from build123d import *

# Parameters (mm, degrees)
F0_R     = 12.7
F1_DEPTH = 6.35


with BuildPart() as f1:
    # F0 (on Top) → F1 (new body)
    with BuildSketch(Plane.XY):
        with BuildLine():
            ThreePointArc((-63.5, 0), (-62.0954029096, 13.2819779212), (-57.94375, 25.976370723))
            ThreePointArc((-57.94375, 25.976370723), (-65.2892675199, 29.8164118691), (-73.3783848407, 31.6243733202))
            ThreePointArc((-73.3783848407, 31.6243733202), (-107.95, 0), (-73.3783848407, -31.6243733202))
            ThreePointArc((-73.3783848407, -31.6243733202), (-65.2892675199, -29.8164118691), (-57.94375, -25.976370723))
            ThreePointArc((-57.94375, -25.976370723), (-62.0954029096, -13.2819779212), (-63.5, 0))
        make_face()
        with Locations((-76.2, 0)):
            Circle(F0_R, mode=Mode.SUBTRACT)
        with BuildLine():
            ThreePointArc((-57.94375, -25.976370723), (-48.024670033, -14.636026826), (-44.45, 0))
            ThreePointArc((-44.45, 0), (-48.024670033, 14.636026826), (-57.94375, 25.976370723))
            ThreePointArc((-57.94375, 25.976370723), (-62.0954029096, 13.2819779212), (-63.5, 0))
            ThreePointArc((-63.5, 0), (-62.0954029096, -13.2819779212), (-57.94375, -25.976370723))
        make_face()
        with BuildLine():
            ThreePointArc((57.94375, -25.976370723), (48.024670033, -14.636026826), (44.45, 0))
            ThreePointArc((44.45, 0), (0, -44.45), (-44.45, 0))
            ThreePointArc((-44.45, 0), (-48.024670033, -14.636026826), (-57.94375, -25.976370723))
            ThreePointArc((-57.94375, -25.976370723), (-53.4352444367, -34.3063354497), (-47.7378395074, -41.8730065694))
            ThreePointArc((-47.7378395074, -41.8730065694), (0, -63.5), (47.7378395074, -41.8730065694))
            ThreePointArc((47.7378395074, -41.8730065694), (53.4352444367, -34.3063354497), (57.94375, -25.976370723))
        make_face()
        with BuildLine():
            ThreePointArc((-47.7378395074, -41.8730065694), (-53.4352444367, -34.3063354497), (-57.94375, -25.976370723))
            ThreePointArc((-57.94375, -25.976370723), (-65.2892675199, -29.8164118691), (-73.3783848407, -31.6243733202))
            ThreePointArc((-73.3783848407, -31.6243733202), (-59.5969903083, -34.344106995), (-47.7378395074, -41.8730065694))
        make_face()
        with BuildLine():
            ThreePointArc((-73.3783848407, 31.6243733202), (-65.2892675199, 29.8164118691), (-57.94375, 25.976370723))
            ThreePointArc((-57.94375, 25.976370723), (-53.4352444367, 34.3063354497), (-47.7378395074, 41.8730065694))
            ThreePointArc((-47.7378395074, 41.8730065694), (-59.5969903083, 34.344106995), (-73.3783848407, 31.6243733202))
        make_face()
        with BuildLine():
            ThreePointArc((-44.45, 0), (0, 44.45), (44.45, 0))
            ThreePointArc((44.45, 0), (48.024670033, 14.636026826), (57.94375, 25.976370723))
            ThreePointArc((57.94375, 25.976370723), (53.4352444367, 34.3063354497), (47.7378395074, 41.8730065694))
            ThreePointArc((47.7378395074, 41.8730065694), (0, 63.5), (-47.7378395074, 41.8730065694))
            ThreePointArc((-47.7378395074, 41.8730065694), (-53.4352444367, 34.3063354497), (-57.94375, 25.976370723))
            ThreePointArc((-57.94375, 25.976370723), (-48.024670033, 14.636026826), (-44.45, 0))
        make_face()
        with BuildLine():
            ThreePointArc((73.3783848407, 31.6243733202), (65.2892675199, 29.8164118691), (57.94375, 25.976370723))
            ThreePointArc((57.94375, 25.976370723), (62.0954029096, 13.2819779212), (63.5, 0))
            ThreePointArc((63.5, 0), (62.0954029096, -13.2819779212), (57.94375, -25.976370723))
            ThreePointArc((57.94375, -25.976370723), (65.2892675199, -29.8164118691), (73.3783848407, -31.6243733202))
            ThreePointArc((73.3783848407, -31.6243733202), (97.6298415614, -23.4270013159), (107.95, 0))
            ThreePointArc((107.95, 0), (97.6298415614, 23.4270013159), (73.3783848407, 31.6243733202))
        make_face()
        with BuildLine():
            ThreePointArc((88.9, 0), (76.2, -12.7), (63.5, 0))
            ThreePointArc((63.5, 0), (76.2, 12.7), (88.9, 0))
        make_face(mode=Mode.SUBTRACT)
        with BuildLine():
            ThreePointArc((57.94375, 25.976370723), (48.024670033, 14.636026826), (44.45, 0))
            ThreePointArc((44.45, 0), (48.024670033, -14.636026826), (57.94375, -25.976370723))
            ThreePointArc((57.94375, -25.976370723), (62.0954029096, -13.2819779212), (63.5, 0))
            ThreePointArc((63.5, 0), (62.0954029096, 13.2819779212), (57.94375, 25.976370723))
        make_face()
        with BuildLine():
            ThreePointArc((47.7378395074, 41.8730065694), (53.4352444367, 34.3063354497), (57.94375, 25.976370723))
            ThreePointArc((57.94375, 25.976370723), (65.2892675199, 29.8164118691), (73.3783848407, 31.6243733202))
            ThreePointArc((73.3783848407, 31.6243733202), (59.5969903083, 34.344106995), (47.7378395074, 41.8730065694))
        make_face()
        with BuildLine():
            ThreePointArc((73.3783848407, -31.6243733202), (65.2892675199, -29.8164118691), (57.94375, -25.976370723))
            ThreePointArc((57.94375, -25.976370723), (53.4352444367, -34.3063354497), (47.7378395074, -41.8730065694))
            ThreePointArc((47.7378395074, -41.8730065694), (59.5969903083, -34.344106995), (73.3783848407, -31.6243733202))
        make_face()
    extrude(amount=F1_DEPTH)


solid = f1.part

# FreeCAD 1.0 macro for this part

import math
import FreeCAD as App
import Part
import Sketcher

V = App.Vector
Q = App.Units.Quantity

doc = App.newDocument("Part")
params = doc.addObject("Spreadsheet::Sheet", "Params")
for row, (alias, value) in enumerate([
    ("sketch1_diameter", "1 in"),
    ("sketch1_diameter2", "3.5 in"),
    ("sketch1_radius", "1.5 in"),
    ("sketch1_radius2", "2.5 in"),
    ("sketch1_radius3", "1.25 in"),
    ("pad1_length", "0.25 in"),
], start=1):
    params.set(f"A{row}", alias)
    params.set(f"B{row}", "=" + value)
    params.setAlias(f"B{row}", alias)

body = doc.addObject("PartDesign::Body", "Body")

sketch1 = body.newObject("Sketcher::SketchObject", "Sketch")
sketch1.AttachmentSupport = (doc.getObject("XY_Plane"), [""])
sketch1.MapMode = "FlatFace"
sketch1.addGeometry(Part.ArcOfCircle(Part.Circle(V(76, 0, 0), V(0, 0, 1), 32), math.radians(-95), math.radians(0)), False)
sketch1.addGeometry(Part.ArcOfCircle(Part.Circle(V(76, 0, 0), V(0, 0, 1), 32), math.radians(0), math.radians(95)), False)
sketch1.addGeometry(Part.ArcOfCircle(Part.Circle(V(74, 70, 0), V(0, 0, 1), 38), math.radians(-133), math.radians(-91)), False)
sketch1.addGeometry(Part.ArcOfCircle(Part.Circle(V(0, 0, 0), V(0, 0, 1), 64), math.radians(41), math.radians(139)), False)
sketch1.addGeometry(Part.ArcOfCircle(Part.Circle(V(-74, 70, 0), V(0, 0, 1), 38), math.radians(-89), math.radians(-47)), False)
sketch1.addGeometry(Part.ArcOfCircle(Part.Circle(V(-76, 0, 0), V(0, 0, 1), 32), math.radians(85), math.radians(275)), False)
sketch1.addGeometry(Part.ArcOfCircle(Part.Circle(V(-74, -70, 0), V(0, 0, 1), 38), math.radians(47), math.radians(89)), False)
sketch1.addGeometry(Part.ArcOfCircle(Part.Circle(V(0, 0, 0), V(0, 0, 1), 64), math.radians(-139), math.radians(-41)), False)
sketch1.addGeometry(Part.ArcOfCircle(Part.Circle(V(74, -70, 0), V(0, 0, 1), 38), math.radians(91), math.radians(133)), False)
sketch1.addGeometry(Part.Circle(V(-76, 0, 0), V(0, 0, 1), 13), False)
sketch1.addGeometry(Part.Circle(V(0, 0, 0), V(0, 0, 1), 44), False)
sketch1.addGeometry(Part.Circle(V(76, 0, 0), V(0, 0, 1), 13), False)
sketch1.addConstraint(Sketcher.Constraint("Tangent", 0, 2, 1, 1))
sketch1.addConstraint(Sketcher.Constraint("Coincident", 1, 2, 2, 2))
sketch1.addConstraint(Sketcher.Constraint("Coincident", 2, 1, 3, 1))
sketch1.addConstraint(Sketcher.Constraint("Coincident", 3, 2, 4, 2))
sketch1.addConstraint(Sketcher.Constraint("Coincident", 4, 1, 5, 1))
sketch1.addConstraint(Sketcher.Constraint("Coincident", 5, 2, 6, 2))
sketch1.addConstraint(Sketcher.Constraint("Coincident", 6, 1, 7, 1))
sketch1.addConstraint(Sketcher.Constraint("Coincident", 7, 2, 8, 2))
sketch1.addConstraint(Sketcher.Constraint("Coincident", 8, 1, 0, 1))
sketch1.addConstraint(Sketcher.Constraint("Coincident", 3, 3, -1, 1))
sketch1.addConstraint(Sketcher.Constraint("Coincident", 7, 3, -1, 1))
sketch1.addConstraint(Sketcher.Constraint("Coincident", 10, 3, -1, 1))
sketch1.addConstraint(Sketcher.Constraint("Coincident", 9, 3, 5, 3))
sketch1.addConstraint(Sketcher.Constraint("Coincident", 11, 3, 0, 3))
sketch1.addConstraint(Sketcher.Constraint("Equal", 0, 1))
sketch1.addConstraint(Sketcher.Constraint("Equal", 2, 4))
sketch1.addConstraint(Sketcher.Constraint("Equal", 1, 5))
sketch1.addConstraint(Sketcher.Constraint("Equal", 4, 6))
sketch1.addConstraint(Sketcher.Constraint("Equal", 3, 7))
sketch1.addConstraint(Sketcher.Constraint("Equal", 6, 8))
sketch1.addConstraint(Sketcher.Constraint("Equal", 9, 11))
sketch1.addConstraint(Sketcher.Constraint("Symmetric", 0, 3, 5, 3, -1, 1))
sketch1.addConstraint(Sketcher.Constraint("Symmetric", 2, 3, 6, 3, -1, 1))
sketch1.addConstraint(Sketcher.Constraint("Symmetric", 4, 3, 8, 3, -1, 1))
sketch1.addConstraint(Sketcher.Constraint("Symmetric", 2, 3, 4, 3, -2))
sketch1.addConstraint(Sketcher.Constraint("PointOnObject", 0, 3, -1))
sketch1.addConstraint(Sketcher.Constraint("PointOnObject", 0, 2, -1))
sketch1.addConstraint(Sketcher.Constraint("Diameter", 9, Q("1 in")))
sketch1.addConstraint(Sketcher.Constraint("Diameter", 10, Q("3.5 in")))
sketch1.addConstraint(Sketcher.Constraint("Radius", 2, Q("1.5 in")))
sketch1.addConstraint(Sketcher.Constraint("Radius", 3, Q("2.5 in")))
sketch1.addConstraint(Sketcher.Constraint("Radius", 0, Q("1.25 in")))
sketch1.addConstraint(Sketcher.Constraint("DistanceX", -1, 1, 0, 3, Q("3 in")))
sketch1.addConstraint(Sketcher.Constraint("DistanceX", -1, 1, 2, 1, 47.73784))
sketch1.addConstraint(Sketcher.Constraint("DistanceY", 2, 1, 2, 3, 27.84967))
sketch1.setExpression("Constraints[27]", "Params.sketch1_diameter")
sketch1.setExpression("Constraints[28]", "Params.sketch1_diameter2")
sketch1.setExpression("Constraints[29]", "Params.sketch1_radius")
sketch1.setExpression("Constraints[30]", "Params.sketch1_radius2")
sketch1.setExpression("Constraints[31]", "Params.sketch1_radius3")
pad1 = body.newObject("PartDesign::Pad", "Pad")
pad1.Profile = sketch1
pad1.setExpression("Length", "Params.pad1_length")

doc.recompute()
